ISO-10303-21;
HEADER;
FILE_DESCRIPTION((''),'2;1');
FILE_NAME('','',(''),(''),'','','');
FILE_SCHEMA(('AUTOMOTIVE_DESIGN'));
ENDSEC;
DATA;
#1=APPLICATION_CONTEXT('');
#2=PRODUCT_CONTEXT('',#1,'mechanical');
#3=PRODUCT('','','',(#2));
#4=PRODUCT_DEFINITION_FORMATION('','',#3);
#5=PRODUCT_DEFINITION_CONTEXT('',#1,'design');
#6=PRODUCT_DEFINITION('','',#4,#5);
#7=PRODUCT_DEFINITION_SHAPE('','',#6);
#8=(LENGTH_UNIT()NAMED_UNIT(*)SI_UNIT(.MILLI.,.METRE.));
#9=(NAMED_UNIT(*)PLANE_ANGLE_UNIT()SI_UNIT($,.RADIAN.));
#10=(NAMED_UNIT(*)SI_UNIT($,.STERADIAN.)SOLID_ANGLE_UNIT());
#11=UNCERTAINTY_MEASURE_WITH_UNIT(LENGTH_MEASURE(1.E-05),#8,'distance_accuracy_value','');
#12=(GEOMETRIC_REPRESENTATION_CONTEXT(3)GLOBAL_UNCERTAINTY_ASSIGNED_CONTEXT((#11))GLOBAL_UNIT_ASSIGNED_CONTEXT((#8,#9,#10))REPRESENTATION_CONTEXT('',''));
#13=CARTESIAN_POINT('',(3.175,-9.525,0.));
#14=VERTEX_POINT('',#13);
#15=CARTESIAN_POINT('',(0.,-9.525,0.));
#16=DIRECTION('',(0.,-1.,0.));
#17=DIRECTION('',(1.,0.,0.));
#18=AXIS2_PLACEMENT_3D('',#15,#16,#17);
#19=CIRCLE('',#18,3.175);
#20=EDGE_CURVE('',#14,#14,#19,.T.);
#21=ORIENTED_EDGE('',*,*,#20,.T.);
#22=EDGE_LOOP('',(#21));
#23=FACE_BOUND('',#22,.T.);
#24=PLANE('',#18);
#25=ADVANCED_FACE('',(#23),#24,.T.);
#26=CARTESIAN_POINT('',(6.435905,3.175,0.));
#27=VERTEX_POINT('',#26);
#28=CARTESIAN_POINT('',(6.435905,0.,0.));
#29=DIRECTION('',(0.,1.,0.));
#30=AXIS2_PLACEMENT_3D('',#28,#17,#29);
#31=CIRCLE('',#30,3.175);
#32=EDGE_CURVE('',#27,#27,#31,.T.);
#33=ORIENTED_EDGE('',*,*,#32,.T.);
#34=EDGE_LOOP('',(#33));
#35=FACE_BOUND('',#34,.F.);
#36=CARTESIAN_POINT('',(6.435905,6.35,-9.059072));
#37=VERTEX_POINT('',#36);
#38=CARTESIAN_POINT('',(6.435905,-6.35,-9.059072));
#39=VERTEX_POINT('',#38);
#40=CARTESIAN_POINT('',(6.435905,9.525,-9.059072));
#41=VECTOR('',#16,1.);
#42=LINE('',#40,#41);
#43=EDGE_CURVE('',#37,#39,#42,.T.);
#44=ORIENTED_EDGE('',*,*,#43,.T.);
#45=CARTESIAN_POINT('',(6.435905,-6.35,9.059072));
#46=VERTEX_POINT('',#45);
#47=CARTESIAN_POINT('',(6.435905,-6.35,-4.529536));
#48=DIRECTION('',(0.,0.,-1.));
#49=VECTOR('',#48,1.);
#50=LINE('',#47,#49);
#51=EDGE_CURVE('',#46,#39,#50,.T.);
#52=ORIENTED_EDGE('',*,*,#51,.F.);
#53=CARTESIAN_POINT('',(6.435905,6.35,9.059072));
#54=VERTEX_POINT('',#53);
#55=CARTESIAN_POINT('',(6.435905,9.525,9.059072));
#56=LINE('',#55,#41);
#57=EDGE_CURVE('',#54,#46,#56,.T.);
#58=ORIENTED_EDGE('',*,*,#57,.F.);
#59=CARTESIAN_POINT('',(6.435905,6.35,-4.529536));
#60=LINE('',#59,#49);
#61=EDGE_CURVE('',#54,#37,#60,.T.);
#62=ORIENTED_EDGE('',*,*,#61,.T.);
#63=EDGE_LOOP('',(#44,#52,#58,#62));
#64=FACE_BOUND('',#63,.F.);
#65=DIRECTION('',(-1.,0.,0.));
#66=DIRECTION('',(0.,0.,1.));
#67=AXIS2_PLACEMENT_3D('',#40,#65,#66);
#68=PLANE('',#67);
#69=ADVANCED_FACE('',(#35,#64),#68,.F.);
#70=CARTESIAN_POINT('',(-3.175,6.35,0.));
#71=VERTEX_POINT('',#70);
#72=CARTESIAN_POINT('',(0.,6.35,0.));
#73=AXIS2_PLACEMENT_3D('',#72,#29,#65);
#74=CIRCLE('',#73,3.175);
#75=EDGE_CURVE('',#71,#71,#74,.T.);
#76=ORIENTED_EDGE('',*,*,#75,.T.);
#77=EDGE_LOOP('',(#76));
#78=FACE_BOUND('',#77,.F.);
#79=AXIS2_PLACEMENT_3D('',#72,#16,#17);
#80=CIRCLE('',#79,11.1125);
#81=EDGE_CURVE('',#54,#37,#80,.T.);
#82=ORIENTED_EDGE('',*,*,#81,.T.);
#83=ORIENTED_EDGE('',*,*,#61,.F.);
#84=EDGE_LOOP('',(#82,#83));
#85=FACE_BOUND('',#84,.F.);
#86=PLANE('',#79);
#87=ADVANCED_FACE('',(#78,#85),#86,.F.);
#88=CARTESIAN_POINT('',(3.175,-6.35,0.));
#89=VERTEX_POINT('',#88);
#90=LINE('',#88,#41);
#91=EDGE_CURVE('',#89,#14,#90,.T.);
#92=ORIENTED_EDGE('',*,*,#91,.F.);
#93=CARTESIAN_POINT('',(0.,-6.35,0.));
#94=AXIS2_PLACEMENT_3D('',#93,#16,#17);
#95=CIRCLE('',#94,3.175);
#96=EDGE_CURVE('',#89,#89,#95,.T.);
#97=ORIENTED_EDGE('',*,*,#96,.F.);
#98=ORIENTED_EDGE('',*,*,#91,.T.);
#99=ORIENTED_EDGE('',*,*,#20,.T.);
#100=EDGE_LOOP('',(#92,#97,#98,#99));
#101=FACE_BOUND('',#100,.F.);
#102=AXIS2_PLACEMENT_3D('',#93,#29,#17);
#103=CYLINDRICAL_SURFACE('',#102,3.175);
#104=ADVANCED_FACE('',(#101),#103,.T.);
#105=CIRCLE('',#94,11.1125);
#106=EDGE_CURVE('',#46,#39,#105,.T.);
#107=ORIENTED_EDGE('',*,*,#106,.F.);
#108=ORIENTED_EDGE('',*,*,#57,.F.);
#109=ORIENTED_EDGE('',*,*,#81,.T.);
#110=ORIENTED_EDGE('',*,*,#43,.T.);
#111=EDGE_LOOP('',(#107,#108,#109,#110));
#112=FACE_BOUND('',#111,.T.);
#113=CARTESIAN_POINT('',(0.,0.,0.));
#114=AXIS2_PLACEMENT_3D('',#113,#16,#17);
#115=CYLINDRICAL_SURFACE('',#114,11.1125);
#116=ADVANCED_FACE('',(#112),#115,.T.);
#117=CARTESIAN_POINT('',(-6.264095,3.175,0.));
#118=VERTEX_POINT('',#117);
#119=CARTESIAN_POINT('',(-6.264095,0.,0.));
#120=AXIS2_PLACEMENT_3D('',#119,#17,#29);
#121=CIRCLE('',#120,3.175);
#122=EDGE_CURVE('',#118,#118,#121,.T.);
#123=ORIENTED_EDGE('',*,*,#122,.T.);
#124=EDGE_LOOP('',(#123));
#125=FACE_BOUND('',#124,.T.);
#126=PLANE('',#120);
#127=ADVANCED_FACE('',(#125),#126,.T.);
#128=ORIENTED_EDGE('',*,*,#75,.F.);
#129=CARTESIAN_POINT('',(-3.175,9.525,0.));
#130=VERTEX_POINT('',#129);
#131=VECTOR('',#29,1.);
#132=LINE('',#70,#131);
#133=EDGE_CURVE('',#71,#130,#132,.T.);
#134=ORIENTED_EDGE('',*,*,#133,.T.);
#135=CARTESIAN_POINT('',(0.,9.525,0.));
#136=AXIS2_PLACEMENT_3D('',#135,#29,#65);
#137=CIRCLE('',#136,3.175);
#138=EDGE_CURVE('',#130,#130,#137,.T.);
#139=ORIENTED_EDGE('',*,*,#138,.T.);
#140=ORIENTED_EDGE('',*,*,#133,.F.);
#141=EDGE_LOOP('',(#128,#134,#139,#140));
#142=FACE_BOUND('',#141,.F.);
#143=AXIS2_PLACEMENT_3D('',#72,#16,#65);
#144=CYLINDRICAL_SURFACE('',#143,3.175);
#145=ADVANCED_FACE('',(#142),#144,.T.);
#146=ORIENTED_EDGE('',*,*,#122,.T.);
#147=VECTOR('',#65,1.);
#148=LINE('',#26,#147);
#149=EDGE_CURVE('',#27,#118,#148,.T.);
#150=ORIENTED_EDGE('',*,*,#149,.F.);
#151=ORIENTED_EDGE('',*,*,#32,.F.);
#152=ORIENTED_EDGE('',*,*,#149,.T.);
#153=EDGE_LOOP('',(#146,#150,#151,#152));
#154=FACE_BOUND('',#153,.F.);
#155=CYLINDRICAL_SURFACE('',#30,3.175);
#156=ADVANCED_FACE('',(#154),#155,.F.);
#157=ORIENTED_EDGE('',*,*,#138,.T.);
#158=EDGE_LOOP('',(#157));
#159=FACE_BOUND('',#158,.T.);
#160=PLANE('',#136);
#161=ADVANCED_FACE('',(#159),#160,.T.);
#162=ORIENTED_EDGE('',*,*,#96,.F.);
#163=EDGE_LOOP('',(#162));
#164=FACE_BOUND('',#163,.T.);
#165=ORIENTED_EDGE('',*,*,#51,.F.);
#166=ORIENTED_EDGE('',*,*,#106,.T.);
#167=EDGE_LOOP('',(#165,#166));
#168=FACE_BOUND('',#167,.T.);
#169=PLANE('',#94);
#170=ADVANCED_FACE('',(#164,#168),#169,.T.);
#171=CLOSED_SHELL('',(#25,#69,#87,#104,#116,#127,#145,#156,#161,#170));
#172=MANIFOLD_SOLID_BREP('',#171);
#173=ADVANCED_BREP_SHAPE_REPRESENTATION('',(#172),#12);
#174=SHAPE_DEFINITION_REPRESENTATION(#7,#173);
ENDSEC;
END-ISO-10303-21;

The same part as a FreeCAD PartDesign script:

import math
import FreeCAD as App
import Part
import Sketcher
Q = App.Units.Quantity

doc = App.newDocument("Part")
body = doc.addObject("PartDesign::Body", "Body")

# Sketch on XZ plane
sketch1 = doc.addObject("Sketcher::SketchObject", "Sketch")
body.addObject(sketch1)
sketch1.AttachmentSupport = (doc.XZ_Plane, [""])
sketch1.MapMode = "FlatFace"
sketch1.addGeometry(Part.Circle(App.Vector(0, 0, 0), App.Vector(0, 0, 1), 11), False)
sketch1.addConstraint([
    Sketcher.Constraint("Coincident", 0, 3, -1, 1),
    Sketcher.Constraint("Diameter", 0, Q("0.875 in")),
])
pad1 = doc.addObject("PartDesign::Pad", "Pad")
body.addObject(pad1)
pad1.Profile = sketch1
pad1.Length = Q("0.5 in")
pad1.Midplane = True

# Sketch on XZ plane
sketch2 = doc.addObject("Sketcher::SketchObject", "Sketch001")
body.addObject(sketch2)
sketch2.AttachmentSupport = (doc.XZ_Plane, [""])
sketch2.MapMode = "FlatFace"
sketch2.AttachmentOffset = App.Placement(App.Vector(0, 0, 0.25 * 25.4), App.Rotation())
sketch2.addGeometry(Part.Circle(App.Vector(0, 0, 0), App.Vector(0, 0, 1), 3.2), False)
sketch2.addConstraint([
    Sketcher.Constraint("Coincident", 0, 3, -1, 1),
    Sketcher.Constraint("Diameter", 0, Q("0.25 in")),
])
pad2 = doc.addObject("PartDesign::Pad", "Pad001")
body.addObject(pad2)
pad2.Profile = sketch2
pad2.Length = Q("0.125 in")

# Sketch on XZ plane
sketch3 = doc.addObject("Sketcher::SketchObject", "Sketch002")
body.addObject(sketch3)
sketch3.AttachmentSupport = (doc.XZ_Plane, [""])
sketch3.MapMode = "FlatFace"
sketch3.AttachmentOffset = App.Placement(App.Vector(0, 0, -0.25 * 25.4), App.Rotation())
sketch3.addGeometry(Part.Circle(App.Vector(0, 0, 0), App.Vector(0, 0, 1), 3.2), False)
sketch3.addConstraint([
    Sketcher.Constraint("Coincident", 0, 3, -1, 1),
    Sketcher.Constraint("Diameter", 0, Q("0.25 in")),
])
pad3 = doc.addObject("PartDesign::Pad", "Pad002")
body.addObject(pad3)
pad3.Profile = sketch3
pad3.Length = Q("0.125 in")
pad3.Reversed = True

# Sketch on XZ plane
sketch4 = doc.addObject("Sketcher::SketchObject", "Sketch003")
body.addObject(sketch4)
sketch4.AttachmentSupport = (doc.XZ_Plane, [""])
sketch4.MapMode = "FlatFace"
sketch4.AttachmentOffset = App.Placement(App.Vector(0, 0, -0.375 * 25.4), App.Rotation())
sketch4.addGeometry([
    Part.ArcOfCircle(Part.Circle(App.Vector(0, 0, 0), App.Vector(0, 0, 1), 11), math.radians(-55), math.radians(55)),
    Part.LineSegment(App.Vector(6, -9, 0), App.Vector(6, 9, 0)),
], False)
sketch4.addConstraint([
    Sketcher.Constraint("Coincident", 0, 1, 1, 1),
    Sketcher.Constraint("Coincident", 1, 2, 0, 2),
    Sketcher.Constraint("Vertical", 1),
    Sketcher.Constraint("Coincident", 0, 3, -1, 1),
    Sketcher.Constraint("Radius", 0, Q("0.4375 in")),
    Sketcher.Constraint("DistanceY", 1, 1, 1, 2, Q("18.118144 mm")),
])
pocket1 = doc.addObject("PartDesign::Pocket", "Pocket")
body.addObject(pocket1)
pocket1.Profile = sketch4
pocket1.Length = Q("1 in")
pocket1.Reversed = True

# Sketch on YZ plane
sketch5 = doc.addObject("Sketcher::SketchObject", "Sketch004")
body.addObject(sketch5)
sketch5.AttachmentSupport = (doc.YZ_Plane, [""])
sketch5.MapMode = "FlatFace"
sketch5.AttachmentOffset = App.Placement(App.Vector(0, 0, 6.435905), App.Rotation())
sketch5.addGeometry(Part.Circle(App.Vector(0, 0, 0), App.Vector(0, 0, 1), 3.2), False)
sketch5.addConstraint([
    Sketcher.Constraint("Coincident", 0, 3, -1, 1),
    Sketcher.Constraint("Diameter", 0, Q("0.25 in")),
])
pocket2 = doc.addObject("PartDesign::Pocket", "Pocket001")
body.addObject(pocket2)
pocket2.Profile = sketch5
pocket2.Length = Q("0.5 in")

doc.recompute()
